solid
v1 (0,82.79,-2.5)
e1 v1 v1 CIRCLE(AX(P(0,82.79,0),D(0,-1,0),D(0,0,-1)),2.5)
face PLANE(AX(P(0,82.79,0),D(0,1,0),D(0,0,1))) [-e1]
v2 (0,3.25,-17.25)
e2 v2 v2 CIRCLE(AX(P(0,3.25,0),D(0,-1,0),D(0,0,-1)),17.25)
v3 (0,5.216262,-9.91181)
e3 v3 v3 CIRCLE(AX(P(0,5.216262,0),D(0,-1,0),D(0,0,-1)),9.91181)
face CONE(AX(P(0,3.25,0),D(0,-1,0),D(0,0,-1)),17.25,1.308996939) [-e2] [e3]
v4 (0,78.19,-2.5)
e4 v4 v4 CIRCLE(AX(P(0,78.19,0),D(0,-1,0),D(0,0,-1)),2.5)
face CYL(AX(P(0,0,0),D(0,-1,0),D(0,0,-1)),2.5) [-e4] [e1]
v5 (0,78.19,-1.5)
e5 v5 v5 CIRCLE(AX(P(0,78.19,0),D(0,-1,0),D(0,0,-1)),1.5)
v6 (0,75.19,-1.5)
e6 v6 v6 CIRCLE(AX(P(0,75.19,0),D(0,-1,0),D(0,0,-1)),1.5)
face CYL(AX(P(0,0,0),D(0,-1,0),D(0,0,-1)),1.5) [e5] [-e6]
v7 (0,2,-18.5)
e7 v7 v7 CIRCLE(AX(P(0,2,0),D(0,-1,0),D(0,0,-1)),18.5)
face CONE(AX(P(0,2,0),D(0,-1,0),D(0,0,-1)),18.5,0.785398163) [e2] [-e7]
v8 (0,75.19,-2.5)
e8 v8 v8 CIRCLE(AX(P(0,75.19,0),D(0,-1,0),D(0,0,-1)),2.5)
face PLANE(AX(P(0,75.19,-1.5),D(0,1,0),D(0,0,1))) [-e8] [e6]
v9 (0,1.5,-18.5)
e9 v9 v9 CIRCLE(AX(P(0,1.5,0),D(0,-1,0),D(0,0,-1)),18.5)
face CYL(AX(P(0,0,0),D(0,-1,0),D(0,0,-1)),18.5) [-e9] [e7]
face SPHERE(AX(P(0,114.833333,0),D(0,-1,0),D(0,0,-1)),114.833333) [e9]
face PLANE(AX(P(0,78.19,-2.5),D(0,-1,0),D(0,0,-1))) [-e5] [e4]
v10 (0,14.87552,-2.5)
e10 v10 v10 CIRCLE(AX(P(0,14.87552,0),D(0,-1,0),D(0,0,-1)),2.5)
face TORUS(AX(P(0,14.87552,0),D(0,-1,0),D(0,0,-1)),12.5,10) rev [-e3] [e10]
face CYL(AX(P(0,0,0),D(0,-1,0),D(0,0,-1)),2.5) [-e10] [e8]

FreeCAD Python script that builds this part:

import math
import FreeCAD as App
import Part
import Sketcher
Q = App.Units.Quantity

doc = App.newDocument("Part")
body = doc.addObject("PartDesign::Body", "Body")

# Sketch on YZ plane
sketch1 = doc.addObject("Sketcher::SketchObject", "Sketch")
body.addObject(sketch1)
sketch1.AttachmentSupport = (doc.YZ_Plane, [""])
sketch1.MapMode = "FlatFace"
sketch1.addGeometry([
    Part.LineSegment(App.Vector(82.8, 0, 0), App.Vector(0, 0, 0)),  # 0
    Part.ArcOfCircle(Part.Circle(App.Vector(114.8, 0, 0), App.Vector(0, 0, 1), 114.8), math.radians(180), math.radians(189.27)),  # 1
    Part.LineSegment(App.Vector(1.5, -18.5, 0), App.Vector(2, -18.5, 0)),  # 2
    Part.LineSegment(App.Vector(2, -18.5, 0), App.Vector(3.2, -17.2, 0)),  # 3
    Part.LineSegment(App.Vector(3.2, -17.2, 0), App.Vector(5.2, -9.9, 0)),  # 4
    Part.ArcOfCircle(Part.Circle(App.Vector(14.9, -12.5, 0), App.Vector(0, 0, 1), 10), math.radians(90), math.radians(165)),  # 5
    Part.LineSegment(App.Vector(14.9, -2.5, 0), App.Vector(75.2, -2.5, 0)),  # 6
    Part.LineSegment(App.Vector(75.2, -2.5, 0), App.Vector(75.2, -1.5, 0)),  # 7
    Part.LineSegment(App.Vector(75.2, -1.5, 0), App.Vector(78.2, -1.5, 0)),  # 8
    Part.LineSegment(App.Vector(78.2, -1.5, 0), App.Vector(78.2, -2.5, 0)),  # 9
    Part.LineSegment(App.Vector(78.2, -2.5, 0), App.Vector(82.8, -2.5, 0)),  # 10
    Part.LineSegment(App.Vector(82.8, -2.5, 0), App.Vector(82.8, 0, 0)),  # 11
], False)
sketch1.addConstraint([
    Sketcher.Constraint("Coincident", 0, 2, 1, 1),
    Sketcher.Constraint("Coincident", 1, 2, 2, 1),
    Sketcher.Constraint("Coincident", 2, 2, 3, 1),
    Sketcher.Constraint("Coincident", 3, 2, 4, 1),
    Sketcher.Constraint("Tangent", 4, 2, 5, 2),
    Sketcher.Constraint("Tangent", 5, 1, 6, 1),
    Sketcher.Constraint("Coincident", 6, 2, 7, 1),
    Sketcher.Constraint("Coincident", 7, 2, 8, 1),
    Sketcher.Constraint("Coincident", 8, 2, 9, 1),
    Sketcher.Constraint("Coincident", 9, 2, 10, 1),
    Sketcher.Constraint("Coincident", 10, 2, 11, 1),
    Sketcher.Constraint("Coincident", 11, 2, 0, 1),
    Sketcher.Constraint("Horizontal", 0),
    Sketcher.Constraint("Horizontal", 2),
    Sketcher.Constraint("Horizontal", 6),
    Sketcher.Constraint("Vertical", 7),
    Sketcher.Constraint("Horizontal", 8),
    Sketcher.Constraint("Vertical", 9),
    Sketcher.Constraint("Horizontal", 10),
    Sketcher.Constraint("Vertical", 11),
    Sketcher.Constraint("Coincident", 0, 2, -1, 1),
    Sketcher.Constraint("PointOnObject", 1, 3, -1),
    Sketcher.Constraint("Horizontal", 6, 2, 9, 2),
    Sketcher.Constraint("Radius", 5, 10.0),
    Sketcher.Constraint("DistanceX", 8, 1, 8, 2, 3.0),
    Sketcher.Constraint("DistanceY", 7, 1, 7, 2, 1.0),
    Sketcher.Constraint("Angle", 3, Q("45 deg")),
    Sketcher.Constraint("Angle", 4, Q("75 deg")),
    Sketcher.Constraint("DistanceX", 2, 1, 2, 2, 0.5),
    Sketcher.Constraint("DistanceX", 10, 1, 10, 2, 4.6),
    Sketcher.Constraint("DistanceY", 11, 1, 11, 2, 2.5),
    Sketcher.Constraint("DistanceX", -1, 1, 2, 2, 2.0),
    Sketcher.Constraint("DistanceY", 2, 2, 5, 3, 6.0),
    Sketcher.Constraint("DistanceX", 0, 2, 0, 1, 82.79),
    Sketcher.Constraint("DistanceX", -1, 1, 3, 2, 3.25),
])
revolution = doc.addObject("PartDesign::Revolution", "Revolution")
body.addObject(revolution)
revolution.Profile = sketch1
revolution.ReferenceAxis = (sketch1, ["H_Axis"])
revolution.Angle = 360

doc.recompute()
